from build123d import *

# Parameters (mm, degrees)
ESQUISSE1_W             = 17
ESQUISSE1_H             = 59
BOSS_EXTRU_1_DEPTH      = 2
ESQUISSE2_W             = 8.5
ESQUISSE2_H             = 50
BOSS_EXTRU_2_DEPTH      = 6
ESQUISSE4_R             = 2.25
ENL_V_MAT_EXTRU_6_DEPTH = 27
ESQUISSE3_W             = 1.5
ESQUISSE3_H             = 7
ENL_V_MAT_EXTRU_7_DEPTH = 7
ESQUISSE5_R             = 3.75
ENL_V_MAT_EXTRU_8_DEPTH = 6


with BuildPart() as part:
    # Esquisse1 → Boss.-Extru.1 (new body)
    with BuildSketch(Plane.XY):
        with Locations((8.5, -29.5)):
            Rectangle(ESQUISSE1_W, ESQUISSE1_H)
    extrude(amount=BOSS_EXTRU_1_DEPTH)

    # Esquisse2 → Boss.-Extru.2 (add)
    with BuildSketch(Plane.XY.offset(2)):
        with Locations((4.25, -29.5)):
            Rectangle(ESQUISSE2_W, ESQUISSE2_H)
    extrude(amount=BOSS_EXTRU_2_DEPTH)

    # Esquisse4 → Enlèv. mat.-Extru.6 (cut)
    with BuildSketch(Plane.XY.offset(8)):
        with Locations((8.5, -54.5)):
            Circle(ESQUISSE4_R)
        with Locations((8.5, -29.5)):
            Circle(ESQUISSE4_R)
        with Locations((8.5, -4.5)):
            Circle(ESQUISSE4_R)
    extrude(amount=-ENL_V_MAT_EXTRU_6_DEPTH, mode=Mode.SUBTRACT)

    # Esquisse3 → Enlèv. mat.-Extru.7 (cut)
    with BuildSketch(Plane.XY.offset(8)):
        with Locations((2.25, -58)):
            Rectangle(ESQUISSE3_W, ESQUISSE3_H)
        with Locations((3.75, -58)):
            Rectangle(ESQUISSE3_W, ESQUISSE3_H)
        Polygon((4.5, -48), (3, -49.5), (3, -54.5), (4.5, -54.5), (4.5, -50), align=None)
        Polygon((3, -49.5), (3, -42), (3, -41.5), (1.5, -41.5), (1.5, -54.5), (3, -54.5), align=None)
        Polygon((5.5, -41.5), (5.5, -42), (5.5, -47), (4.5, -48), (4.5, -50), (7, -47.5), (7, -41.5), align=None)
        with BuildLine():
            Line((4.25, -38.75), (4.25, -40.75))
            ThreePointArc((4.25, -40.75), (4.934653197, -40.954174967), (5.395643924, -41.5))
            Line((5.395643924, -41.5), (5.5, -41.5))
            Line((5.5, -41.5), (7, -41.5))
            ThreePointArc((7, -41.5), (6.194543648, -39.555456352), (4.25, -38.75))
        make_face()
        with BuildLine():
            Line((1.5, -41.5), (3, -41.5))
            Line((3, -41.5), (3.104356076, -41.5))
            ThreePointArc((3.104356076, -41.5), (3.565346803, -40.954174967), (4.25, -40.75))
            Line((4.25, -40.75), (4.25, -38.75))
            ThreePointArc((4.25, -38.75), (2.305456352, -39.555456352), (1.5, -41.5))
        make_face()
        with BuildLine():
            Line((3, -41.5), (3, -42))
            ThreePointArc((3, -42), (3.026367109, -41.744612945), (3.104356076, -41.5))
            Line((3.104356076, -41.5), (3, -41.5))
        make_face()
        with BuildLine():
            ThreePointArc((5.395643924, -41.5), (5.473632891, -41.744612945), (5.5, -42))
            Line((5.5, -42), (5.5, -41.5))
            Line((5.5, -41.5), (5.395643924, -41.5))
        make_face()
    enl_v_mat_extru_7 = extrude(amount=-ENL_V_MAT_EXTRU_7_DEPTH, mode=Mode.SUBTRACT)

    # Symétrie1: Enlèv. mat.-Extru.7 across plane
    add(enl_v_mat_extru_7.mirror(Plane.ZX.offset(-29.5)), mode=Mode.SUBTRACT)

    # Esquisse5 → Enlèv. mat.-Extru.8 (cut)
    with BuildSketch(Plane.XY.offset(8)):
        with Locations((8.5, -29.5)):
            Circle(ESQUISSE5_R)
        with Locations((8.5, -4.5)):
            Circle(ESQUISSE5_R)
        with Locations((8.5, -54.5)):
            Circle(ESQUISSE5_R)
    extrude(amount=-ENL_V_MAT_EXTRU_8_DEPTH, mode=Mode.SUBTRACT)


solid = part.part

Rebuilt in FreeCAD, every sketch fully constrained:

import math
import FreeCAD as App
import Part
import Sketcher

V = App.Vector
Q = App.Units.Quantity


def add_polygon(sketch, points):
    """Adds a closed chain of lines whose ends are joined by coincident constraints."""
    first, n = sketch.GeometryCount, len(points)
    for a, b in zip(points, points[1:] + points[:1]):
        sketch.addGeometry(Part.LineSegment(App.Vector(*a, 0), App.Vector(*b, 0)), False)
    for i in range(n):
        sketch.addConstraint(Sketcher.Constraint("Coincident", first + i, 2, first + (i + 1) % n, 1))

doc = App.newDocument("Part")
params = doc.addObject("Spreadsheet::Sheet", "Params")
for row, (alias, value) in enumerate([
    ("sketch1_width", "17 mm"),
    ("sketch1_height", "59 mm"),
    ("pad1_length", "2 mm"),
    ("sketch2_height", "50 mm"),
    ("sketch2_width", "8.5 mm"),
    ("pad2_length", "6 mm"),
    ("sketch3_diameter", "4.5 mm"),
    ("pocket1_length", "27 mm"),
    ("sketch4_width", "3 mm"),
    ("sketch4_height", "6 mm"),
    ("sketch4_height2", "20 mm"),
    ("sketch4_height3", "5 mm"),
    ("sketch4_radius", "2.75 mm"),
    ("pocket2_length", "7 mm"),
    ("sketch5_diameter", "7.5 mm"),
    ("pocket3_length", "6 mm"),
], start=1):
    params.set(f"A{row}", alias)
    params.set(f"B{row}", "=" + value)
    params.setAlias(f"B{row}", alias)

body = doc.addObject("PartDesign::Body", "Body")

# Sketch on XY plane
sketch1 = body.newObject("Sketcher::SketchObject", "Sketch")
sketch1.AttachmentSupport = (doc.getObject("XY_Plane"), [""])
sketch1.MapMode = "FlatFace"
add_polygon(sketch1, [(0, 0), (0, -59), (17, -59), (17, 0)])  # lines 0-3
sketch1.addConstraint([
    Sketcher.Constraint("Vertical", 0),
    Sketcher.Constraint("Horizontal", 1),
    Sketcher.Constraint("Vertical", 2),
    Sketcher.Constraint("Horizontal", 3),
    Sketcher.Constraint("Coincident", 3, 2, -1, 1),
    Sketcher.Constraint("DistanceX", 1, 1, 1, 2, Q("17 mm")),
    Sketcher.Constraint("DistanceY", 0, 2, 0, 1, Q("59 mm")),
])
sketch1.setExpression("Constraints[9]", "Params.sketch1_width")
sketch1.setExpression("Constraints[10]", "Params.sketch1_height")
pad1 = body.newObject("PartDesign::Pad", "Pad")
pad1.Profile = sketch1
pad1.setExpression("Length", "Params.pad1_length")

# Sketch on XY plane
sketch2 = body.newObject("Sketcher::SketchObject", "Sketch001")
sketch2.AttachmentSupport = (doc.getObject("XY_Plane"), [""])
sketch2.MapMode = "FlatFace"
sketch2.AttachmentOffset = App.Placement(V(0, 0, 2), App.Rotation())
add_polygon(sketch2, [(0, -4), (0, -54), (8, -54), (8, -4)])  # lines 0-3
sketch2.addConstraint([
    Sketcher.Constraint("Vertical", 0),
    Sketcher.Constraint("Horizontal", 1),
    Sketcher.Constraint("Vertical", 2),
    Sketcher.Constraint("Horizontal", 3),
    Sketcher.Constraint("PointOnObject", 0, 2, -2),
    Sketcher.Constraint("DistanceY", 0, 2, 0, 1, Q("50 mm")),
    Sketcher.Constraint("DistanceX", 1, 1, 1, 2, Q("8.5 mm")),
    Sketcher.Constraint("DistanceY", 0, 2, -1, 1, Q("54.5 mm")),
])
sketch2.setExpression("Constraints[9]", "Params.sketch2_height")
sketch2.setExpression("Constraints[10]", "Params.sketch2_width")
pad2 = body.newObject("PartDesign::Pad", "Pad001")
pad2.Profile = sketch2
pad2.setExpression("Length", "Params.pad2_length")

# Sketch on XY plane
sketch3 = body.newObject("Sketcher::SketchObject", "Sketch002")
sketch3.AttachmentSupport = (doc.getObject("XY_Plane"), [""])
sketch3.MapMode = "FlatFace"
sketch3.AttachmentOffset = App.Placement(V(0, 0, 8), App.Rotation())
sketch3.addGeometry([
    Part.Circle(V(8.5, -54.5, 0), V(0, 0, 1), 2.2),
    Part.Circle(V(8.5, -29.5, 0), V(0, 0, 1), 2.2),
    Part.Circle(V(8.5, -4.5, 0), V(0, 0, 1), 2.2),
], False)
sketch3.addConstraint([
    Sketcher.Constraint("Equal", 0, 1),
    Sketcher.Constraint("Equal", 1, 2),
    Sketcher.Constraint("Vertical", 0, 3, 1, 3),
    Sketcher.Constraint("Vertical", 1, 3, 2, 3),
    Sketcher.Constraint("Diameter", 0, Q("4.5 mm")),
    Sketcher.Constraint("DistanceY", 0, 3, 1, 3, Q("25 mm")),
    Sketcher.Constraint("DistanceY", 1, 3, 2, 3, Q("25 mm")),
    Sketcher.Constraint("DistanceX", -1, 1, 0, 3, Q("8.5 mm")),
    Sketcher.Constraint("DistanceY", 0, 3, -1, 1, Q("54.5 mm")),
])
sketch3.setExpression("Constraints[4]", "Params.sketch3_diameter")
pocket1 = body.newObject("PartDesign::Pocket", "Pocket")
pocket1.Profile = sketch3
pocket1.setExpression("Length", "Params.pocket1_length")

# Sketch on XY plane
sketch4 = body.newObject("Sketcher::SketchObject", "Sketch003")
sketch4.AttachmentSupport = (doc.getObject("XY_Plane"), [""])
sketch4.MapMode = "FlatFace"
sketch4.AttachmentOffset = App.Placement(V(0, 0, 8), App.Rotation())
sketch4.addGeometry([
    Part.LineSegment(V(1.5, -61.5, 0), V(4.5, -61.5, 0)),  # 0
    Part.LineSegment(V(4.5, -61.5, 0), V(4.5, -50, 0)),  # 1
    Part.LineSegment(V(4.5, -50, 0), V(7, -47.5, 0)),  # 2
    Part.LineSegment(V(7, -47.5, 0), V(7, -41.5, 0)),  # 3
    Part.ArcOfCircle(Part.Circle(V(4.2, -41.5, 0), V(0, 0, 1), 2.8), math.radians(0), math.radians(90)),  # 4
    Part.ArcOfCircle(Part.Circle(V(4.3, -41.5, 0), V(0, 0, 1), 2.8), math.radians(90), math.radians(180)),  # 5
    Part.LineSegment(V(1.5, -41.5, 0), V(1.5, -61.5, 0)),  # 6
    Part.ArcOfCircle(Part.Circle(V(4.2, -42, 0), V(0, 0, 1), 1.3), math.radians(24), math.radians(90)),  # 7
    Part.ArcOfCircle(Part.Circle(V(4.2, -42, 0), V(0, 0, 1), 1.3), math.radians(0), math.radians(24)),  # 8
    Part.LineSegment(V(5.5, -42, 0), V(5.5, -47, 0)),  # 9
    Part.LineSegment(V(5.5, -47, 0), V(3, -49.5, 0)),  # 10
    Part.LineSegment(V(3, -49.5, 0), V(3, -42, 0)),  # 11
    Part.ArcOfCircle(Part.Circle(V(4.3, -42, 0), V(0, 0, 1), 1.3), math.radians(156), math.radians(180)),  # 12
    Part.ArcOfCircle(Part.Circle(V(4.2, -42, 0), V(0, 0, 1), 1.3), math.radians(90), math.radians(156)),  # 13
], False)
sketch4.addConstraint([
    Sketcher.Constraint("Coincident", 0, 2, 1, 1),
    Sketcher.Constraint("Coincident", 1, 2, 2, 1),
    Sketcher.Constraint("Coincident", 2, 2, 3, 1),
    Sketcher.Constraint("Tangent", 3, 2, 4, 1),
    Sketcher.Constraint("Tangent", 4, 2, 5, 1),
    Sketcher.Constraint("Tangent", 5, 2, 6, 1),
    Sketcher.Constraint("Coincident", 6, 2, 0, 1),
    Sketcher.Constraint("Tangent", 7, 1, 8, 2),
    Sketcher.Constraint("Tangent", 8, 1, 9, 1),
    Sketcher.Constraint("Coincident", 9, 2, 10, 1),
    Sketcher.Constraint("Coincident", 10, 2, 11, 1),
    Sketcher.Constraint("Tangent", 11, 2, 12, 2),
    Sketcher.Constraint("Tangent", 12, 1, 13, 2),
    Sketcher.Constraint("Tangent", 13, 1, 7, 2),
    Sketcher.Constraint("Horizontal", 0),
    Sketcher.Constraint("Vertical", 1),
    Sketcher.Constraint("Vertical", 3),
    Sketcher.Constraint("Vertical", 6),
    Sketcher.Constraint("Vertical", 9),
    Sketcher.Constraint("Vertical", 11),
    Sketcher.Constraint("Coincident", 12, 3, 7, 3),
    Sketcher.Constraint("Equal", 4, 5),
    Sketcher.Constraint("Equal", 7, 8),
    Sketcher.Constraint("Parallel", 2, 10),
    Sketcher.Constraint("Horizontal", 5, 2, 7, 1),
    Sketcher.Constraint("Horizontal", 7, 1, 12, 1),
    Sketcher.Constraint("Vertical", 5, 3, 7, 3),
    Sketcher.Constraint("Vertical", 13, 3, 4, 2),
    Sketcher.Constraint("Vertical", 4, 2, 13, 1),
    Sketcher.Constraint("Equal", 2, 10),
    Sketcher.Constraint("DistanceX", 0, 1, 0, 2, Q("3 mm")),
    Sketcher.Constraint("DistanceY", 3, 1, 3, 2, Q("6 mm")),
    Sketcher.Constraint("DistanceY", 6, 2, 6, 1, Q("20 mm")),
    Sketcher.Constraint("DistanceY", 9, 2, 9, 1, Q("5 mm")),
    Sketcher.Constraint("Angle", 2, Q("45 deg")),
    Sketcher.Constraint("Radius", 4, Q("2.75 mm")),
    Sketcher.Constraint("DistanceY", 7, 3, -1, 1, Q("42 mm")),
    Sketcher.Constraint("DistanceY", 1, 2, -1, 1, Q("50 mm")),
    Sketcher.Constraint("DistanceX", -1, 1, 2, 2, Q("7 mm")),
])
sketch4.setExpression("Constraints[30]", "Params.sketch4_width")
sketch4.setExpression("Constraints[31]", "Params.sketch4_height")
sketch4.setExpression("Constraints[32]", "Params.sketch4_height2")
sketch4.setExpression("Constraints[33]", "Params.sketch4_height3")
sketch4.setExpression("Constraints[35]", "Params.sketch4_radius")
pocket2 = body.newObject("PartDesign::Pocket", "Pocket001")
pocket2.Profile = sketch4
pocket2.setExpression("Length", "Params.pocket2_length")
doc.recompute()

datumplane = body.newObject("PartDesign::Plane", "DatumPlane")
datumplane.AttachmentSupport = (doc.getObject("XZ_Plane"), [""])
datumplane.MapMode = "FlatFace"
datumplane.AttachmentOffset = App.Placement(V(0, 0, 29.5), App.Rotation())
mirrored = body.newObject("PartDesign::Mirrored", "Mirrored")
mirrored.Originals = [pocket2]
mirrored.MirrorPlane = (datumplane, [""])
body.Tip = mirrored

# Sketch on XY plane
sketch5 = body.newObject("Sketcher::SketchObject", "Sketch004")
sketch5.AttachmentSupport = (doc.getObject("XY_Plane"), [""])
sketch5.MapMode = "FlatFace"
sketch5.AttachmentOffset = App.Placement(V(0, 0, 8), App.Rotation())
sketch5.addGeometry([
    Part.Circle(V(8.5, -29.5, 0), V(0, 0, 1), 3.8),
    Part.Circle(V(8.5, -4.5, 0), V(0, 0, 1), 3.8),
    Part.Circle(V(8.5, -54.5, 0), V(0, 0, 1), 3.8),
], False)
sketch5.addConstraint([
    Sketcher.Constraint("Equal", 0, 1),
    Sketcher.Constraint("Equal", 1, 2),
    Sketcher.Constraint("Vertical", 0, 3, 1, 3),
    Sketcher.Constraint("Vertical", 1, 3, 2, 3),
    Sketcher.Constraint("Diameter", 0, Q("7.5 mm")),
    Sketcher.Constraint("DistanceY", 0, 3, 1, 3, Q("25 mm")),
    Sketcher.Constraint("DistanceY", 2, 3, 0, 3, Q("25 mm")),
    Sketcher.Constraint("DistanceX", -1, 1, 0, 3, Q("8.5 mm")),
    Sketcher.Constraint("DistanceY", 0, 3, -1, 1, Q("29.5 mm")),
])
sketch5.setExpression("Constraints[4]", "Params.sketch5_diameter")
pocket3 = body.newObject("PartDesign::Pocket", "Pocket002")
pocket3.Profile = sketch5
pocket3.setExpression("Length", "Params.pocket3_length")

doc.recompute()
